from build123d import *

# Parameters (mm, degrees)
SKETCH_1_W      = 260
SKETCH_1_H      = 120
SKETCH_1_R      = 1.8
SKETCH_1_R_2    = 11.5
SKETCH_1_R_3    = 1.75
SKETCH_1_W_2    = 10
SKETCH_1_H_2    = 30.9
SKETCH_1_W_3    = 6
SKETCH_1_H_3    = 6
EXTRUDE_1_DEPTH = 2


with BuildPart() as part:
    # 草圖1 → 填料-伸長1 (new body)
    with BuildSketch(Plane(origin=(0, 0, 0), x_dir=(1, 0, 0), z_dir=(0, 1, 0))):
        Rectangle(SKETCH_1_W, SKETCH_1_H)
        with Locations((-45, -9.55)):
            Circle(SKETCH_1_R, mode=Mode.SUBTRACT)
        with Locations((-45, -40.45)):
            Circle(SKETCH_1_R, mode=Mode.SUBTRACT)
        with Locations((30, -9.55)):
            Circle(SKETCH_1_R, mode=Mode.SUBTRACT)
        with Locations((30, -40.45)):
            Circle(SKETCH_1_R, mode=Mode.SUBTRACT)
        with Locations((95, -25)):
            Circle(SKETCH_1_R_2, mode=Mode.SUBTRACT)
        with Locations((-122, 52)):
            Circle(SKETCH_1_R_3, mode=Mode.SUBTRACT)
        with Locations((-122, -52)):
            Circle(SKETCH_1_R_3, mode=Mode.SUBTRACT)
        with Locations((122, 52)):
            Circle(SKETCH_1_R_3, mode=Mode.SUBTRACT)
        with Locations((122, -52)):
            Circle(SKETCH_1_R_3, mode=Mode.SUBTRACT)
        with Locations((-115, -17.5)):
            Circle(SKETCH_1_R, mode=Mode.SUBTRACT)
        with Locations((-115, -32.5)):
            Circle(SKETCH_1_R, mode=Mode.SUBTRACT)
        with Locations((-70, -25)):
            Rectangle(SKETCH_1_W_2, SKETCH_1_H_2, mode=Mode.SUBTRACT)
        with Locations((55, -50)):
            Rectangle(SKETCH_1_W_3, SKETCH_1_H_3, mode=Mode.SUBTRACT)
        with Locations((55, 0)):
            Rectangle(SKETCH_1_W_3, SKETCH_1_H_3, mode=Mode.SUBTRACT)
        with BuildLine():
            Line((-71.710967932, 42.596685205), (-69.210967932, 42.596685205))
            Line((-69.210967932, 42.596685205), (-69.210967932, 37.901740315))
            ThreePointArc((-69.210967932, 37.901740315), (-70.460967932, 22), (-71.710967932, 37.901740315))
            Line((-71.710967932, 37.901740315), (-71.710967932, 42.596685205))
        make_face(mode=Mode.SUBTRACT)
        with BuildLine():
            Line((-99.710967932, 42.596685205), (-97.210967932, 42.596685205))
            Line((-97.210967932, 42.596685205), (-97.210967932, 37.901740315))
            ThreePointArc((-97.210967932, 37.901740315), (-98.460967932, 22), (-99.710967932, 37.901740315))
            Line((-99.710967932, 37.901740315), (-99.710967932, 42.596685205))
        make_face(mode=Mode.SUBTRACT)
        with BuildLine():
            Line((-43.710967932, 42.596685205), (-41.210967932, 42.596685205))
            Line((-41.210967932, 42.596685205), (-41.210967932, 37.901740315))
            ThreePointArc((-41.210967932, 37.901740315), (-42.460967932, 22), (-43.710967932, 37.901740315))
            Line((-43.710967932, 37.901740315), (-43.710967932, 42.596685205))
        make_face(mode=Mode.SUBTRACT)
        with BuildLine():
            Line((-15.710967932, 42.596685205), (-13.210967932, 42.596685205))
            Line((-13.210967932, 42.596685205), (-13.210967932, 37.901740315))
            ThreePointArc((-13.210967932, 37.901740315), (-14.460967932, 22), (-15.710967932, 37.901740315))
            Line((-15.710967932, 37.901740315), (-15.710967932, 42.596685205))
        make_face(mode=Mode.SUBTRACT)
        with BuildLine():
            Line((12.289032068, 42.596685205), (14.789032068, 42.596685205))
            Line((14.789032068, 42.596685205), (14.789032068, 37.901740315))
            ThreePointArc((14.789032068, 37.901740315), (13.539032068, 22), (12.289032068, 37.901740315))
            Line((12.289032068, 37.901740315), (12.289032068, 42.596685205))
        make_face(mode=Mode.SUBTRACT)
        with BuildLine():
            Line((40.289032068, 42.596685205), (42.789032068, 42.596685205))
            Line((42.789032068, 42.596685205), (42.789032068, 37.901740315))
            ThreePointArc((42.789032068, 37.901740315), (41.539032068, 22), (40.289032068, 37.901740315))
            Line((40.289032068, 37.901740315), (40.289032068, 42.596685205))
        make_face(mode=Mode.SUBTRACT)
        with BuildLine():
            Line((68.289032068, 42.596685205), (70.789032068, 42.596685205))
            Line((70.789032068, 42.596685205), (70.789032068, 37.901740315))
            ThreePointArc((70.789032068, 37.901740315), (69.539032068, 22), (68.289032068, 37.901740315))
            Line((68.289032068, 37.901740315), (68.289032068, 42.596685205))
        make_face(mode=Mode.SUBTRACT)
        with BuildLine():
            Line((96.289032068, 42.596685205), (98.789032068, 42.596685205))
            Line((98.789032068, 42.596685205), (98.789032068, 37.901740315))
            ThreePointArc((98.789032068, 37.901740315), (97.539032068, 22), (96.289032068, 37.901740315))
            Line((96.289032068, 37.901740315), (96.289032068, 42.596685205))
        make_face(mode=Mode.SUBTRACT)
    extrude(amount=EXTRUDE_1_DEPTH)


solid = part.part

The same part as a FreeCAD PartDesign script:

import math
import FreeCAD as App
import Part
import Sketcher
from FreeCAD import Vector

doc = App.newDocument("Part")
body = doc.addObject("PartDesign::Body", "Body")

# Sketch on XZ plane
sketch1 = body.newObject("Sketcher::SketchObject", "Sketch")
sketch1.AttachmentSupport = (doc.getObject("XZ_Plane"), [""])
sketch1.MapMode = "FlatFace"
sketch1.addGeometry([
    Part.LineSegment(Vector(-130, -60, 0), Vector(-130, 60, 0)),  # 0
    Part.LineSegment(Vector(-130, 60, 0), Vector(130, 60, 0)),  # 1
    Part.LineSegment(Vector(130, 60, 0), Vector(130, -60, 0)),  # 2
    Part.LineSegment(Vector(130, -60, 0), Vector(-130, -60, 0)),  # 3
    Part.Circle(Vector(-122, 52, 0), Vector(0, 0, 1), 1.75),  # 4
    Part.Circle(Vector(-115, 32.5, 0), Vector(0, 0, 1), 1.8),  # 5
    Part.Circle(Vector(-45, 40.45, 0), Vector(0, 0, 1), 1.8),  # 6
    Part.Circle(Vector(-115, 17.5, 0), Vector(0, 0, 1), 1.8),  # 7
    Part.LineSegment(Vector(-65, 40.45, 0), Vector(-75, 40.45, 0)),  # 8
    Part.LineSegment(Vector(-75, 40.45, 0), Vector(-75, 9.55, 0)),  # 9
    Part.LineSegment(Vector(-75, 9.55, 0), Vector(-65, 9.55, 0)),  # 10
    Part.LineSegment(Vector(-65, 9.55, 0), Vector(-65, 40.45, 0)),  # 11
    Part.Circle(Vector(-45, 9.55, 0), Vector(0, 0, 1), 1.8),  # 12
    Part.Circle(Vector(30, 40.45, 0), Vector(0, 0, 1), 1.8),  # 13
    Part.LineSegment(Vector(58, 53, 0), Vector(52, 53, 0)),  # 14
    Part.LineSegment(Vector(52, 53, 0), Vector(52, 47, 0)),  # 15
    Part.LineSegment(Vector(52, 47, 0), Vector(58, 47, 0)),  # 16
    Part.LineSegment(Vector(58, 47, 0), Vector(58, 53, 0)),  # 17
    Part.Circle(Vector(122, 52, 0), Vector(0, 0, 1), 1.75),  # 18
    Part.Circle(Vector(30, 9.55, 0), Vector(0, 0, 1), 1.8),  # 19
    Part.Circle(Vector(95, 25, 0), Vector(0, 0, 1), 11.5),  # 20
    Part.LineSegment(Vector(-99.710968, -37.90174, 0), Vector(-99.710968, -42.596685, 0)),  # 21
    Part.LineSegment(Vector(-99.710968, -42.596685, 0), Vector(-97.210968, -42.596685, 0)),  # 22
    Part.LineSegment(Vector(-97.210968, -42.596685, 0), Vector(-97.210968, -37.90174, 0)),  # 23
    Part.ArcOfCircle(Part.Circle(Vector(-98.460968, -30, 0), Vector(0, 0, 1), 8), math.radians(-81.010701), math.radians(261.010701)),  # 24
    Part.LineSegment(Vector(-71.710968, -37.90174, 0), Vector(-71.710968, -42.596685, 0)),  # 25
    Part.LineSegment(Vector(-71.710968, -42.596685, 0), Vector(-69.210968, -42.596685, 0)),  # 26
    Part.LineSegment(Vector(-69.210968, -42.596685, 0), Vector(-69.210968, -37.90174, 0)),  # 27
    Part.ArcOfCircle(Part.Circle(Vector(-70.460968, -30, 0), Vector(0, 0, 1), 8), math.radians(-81.010701), math.radians(261.010701)),  # 28
    Part.Circle(Vector(-122, -52, 0), Vector(0, 0, 1), 1.75),  # 29
    Part.LineSegment(Vector(-43.710968, -37.90174, 0), Vector(-43.710968, -42.596685, 0)),  # 30
    Part.LineSegment(Vector(-43.710968, -42.596685, 0), Vector(-41.210968, -42.596685, 0)),  # 31
    Part.LineSegment(Vector(-41.210968, -42.596685, 0), Vector(-41.210968, -37.90174, 0)),  # 32
    Part.ArcOfCircle(Part.Circle(Vector(-42.460968, -30, 0), Vector(0, 0, 1), 8), math.radians(-81.010701), math.radians(261.010701)),  # 33
    Part.LineSegment(Vector(-15.710968, -37.90174, 0), Vector(-15.710968, -42.596685, 0)),  # 34
    Part.LineSegment(Vector(-15.710968, -42.596685, 0), Vector(-13.210968, -42.596685, 0)),  # 35
    Part.LineSegment(Vector(-13.210968, -42.596685, 0), Vector(-13.210968, -37.90174, 0)),  # 36
    Part.ArcOfCircle(Part.Circle(Vector(-14.460968, -30, 0), Vector(0, 0, 1), 8), math.radians(-81.010701), math.radians(261.010701)),  # 37
    Part.LineSegment(Vector(58, 3, 0), Vector(52, 3, 0)),  # 38
    Part.LineSegment(Vector(52, 3, 0), Vector(52, -3, 0)),  # 39
    Part.LineSegment(Vector(52, -3, 0), Vector(58, -3, 0)),  # 40
    Part.LineSegment(Vector(58, -3, 0), Vector(58, 3, 0)),  # 41
    Part.LineSegment(Vector(12.289032, -37.90174, 0), Vector(12.289032, -42.596685, 0)),  # 42
    Part.LineSegment(Vector(12.289032, -42.596685, 0), Vector(14.789032, -42.596685, 0)),  # 43
    Part.LineSegment(Vector(14.789032, -42.596685, 0), Vector(14.789032, -37.90174, 0)),  # 44
    Part.ArcOfCircle(Part.Circle(Vector(13.539032, -30, 0), Vector(0, 0, 1), 8), math.radians(-81.010701), math.radians(261.010701)),  # 45
    Part.LineSegment(Vector(40.289032, -37.90174, 0), Vector(40.289032, -42.596685, 0)),  # 46
    Part.LineSegment(Vector(40.289032, -42.596685, 0), Vector(42.789032, -42.596685, 0)),  # 47
    Part.LineSegment(Vector(42.789032, -42.596685, 0), Vector(42.789032, -37.90174, 0)),  # 48
    Part.ArcOfCircle(Part.Circle(Vector(41.539032, -30, 0), Vector(0, 0, 1), 8), math.radians(-81.010701), math.radians(261.010701)),  # 49
    Part.LineSegment(Vector(68.289032, -37.90174, 0), Vector(68.289032, -42.596685, 0)),  # 50
    Part.LineSegment(Vector(68.289032, -42.596685, 0), Vector(70.789032, -42.596685, 0)),  # 51
    Part.LineSegment(Vector(70.789032, -42.596685, 0), Vector(70.789032, -37.90174, 0)),  # 52
    Part.ArcOfCircle(Part.Circle(Vector(69.539032, -30, 0), Vector(0, 0, 1), 8), math.radians(-81.010701), math.radians(261.010701)),  # 53
    Part.LineSegment(Vector(96.289032, -37.90174, 0), Vector(96.289032, -42.596685, 0)),  # 54
    Part.LineSegment(Vector(96.289032, -42.596685, 0), Vector(98.789032, -42.596685, 0)),  # 55
    Part.LineSegment(Vector(98.789032, -42.596685, 0), Vector(98.789032, -37.90174, 0)),  # 56
    Part.ArcOfCircle(Part.Circle(Vector(97.539032, -30, 0), Vector(0, 0, 1), 8), math.radians(-81.010701), math.radians(261.010701)),  # 57
    Part.Circle(Vector(122, -52, 0), Vector(0, 0, 1), 1.75),  # 58
], False)
sketch1.addConstraint([
    Sketcher.Constraint("Coincident", 0, 2, 1, 1),
    Sketcher.Constraint("Coincident", 1, 2, 2, 1),
    Sketcher.Constraint("Coincident", 2, 2, 3, 1),
    Sketcher.Constraint("Coincident", 3, 2, 0, 1),
    Sketcher.Constraint("Coincident", 8, 2, 9, 1),
    Sketcher.Constraint("Coincident", 9, 2, 10, 1),
    Sketcher.Constraint("Coincident", 10, 2, 11, 1),
    Sketcher.Constraint("Coincident", 11, 2, 8, 1),
    Sketcher.Constraint("Coincident", 14, 2, 15, 1),
    Sketcher.Constraint("Coincident", 15, 2, 16, 1),
    Sketcher.Constraint("Coincident", 16, 2, 17, 1),
    Sketcher.Constraint("Coincident", 17, 2, 14, 1),
    Sketcher.Constraint("Coincident", 21, 2, 22, 1),
    Sketcher.Constraint("Coincident", 22, 2, 23, 1),
    Sketcher.Constraint("Coincident", 23, 2, 24, 1),
    Sketcher.Constraint("Coincident", 24, 2, 21, 1),
    Sketcher.Constraint("Coincident", 25, 2, 26, 1),
    Sketcher.Constraint("Coincident", 26, 2, 27, 1),
    Sketcher.Constraint("Coincident", 27, 2, 28, 1),
    Sketcher.Constraint("Coincident", 28, 2, 25, 1),
    Sketcher.Constraint("Coincident", 30, 2, 31, 1),
    Sketcher.Constraint("Coincident", 31, 2, 32, 1),
    Sketcher.Constraint("Coincident", 32, 2, 33, 1),
    Sketcher.Constraint("Coincident", 33, 2, 30, 1),
    Sketcher.Constraint("Coincident", 34, 2, 35, 1),
    Sketcher.Constraint("Coincident", 35, 2, 36, 1),
    Sketcher.Constraint("Coincident", 36, 2, 37, 1),
    Sketcher.Constraint("Coincident", 37, 2, 34, 1),
    Sketcher.Constraint("Coincident", 38, 2, 39, 1),
    Sketcher.Constraint("Coincident", 39, 2, 40, 1),
    Sketcher.Constraint("Coincident", 40, 2, 41, 1),
    Sketcher.Constraint("Coincident", 41, 2, 38, 1),
    Sketcher.Constraint("Coincident", 42, 2, 43, 1),
    Sketcher.Constraint("Coincident", 43, 2, 44, 1),
    Sketcher.Constraint("Coincident", 44, 2, 45, 1),
    Sketcher.Constraint("Coincident", 45, 2, 42, 1),
    Sketcher.Constraint("Coincident", 46, 2, 47, 1),
    Sketcher.Constraint("Coincident", 47, 2, 48, 1),
    Sketcher.Constraint("Coincident", 48, 2, 49, 1),
    Sketcher.Constraint("Coincident", 49, 2, 46, 1),
    Sketcher.Constraint("Coincident", 50, 2, 51, 1),
    Sketcher.Constraint("Coincident", 51, 2, 52, 1),
    Sketcher.Constraint("Coincident", 52, 2, 53, 1),
    Sketcher.Constraint("Coincident", 53, 2, 50, 1),
    Sketcher.Constraint("Coincident", 54, 2, 55, 1),
    Sketcher.Constraint("Coincident", 55, 2, 56, 1),
    Sketcher.Constraint("Coincident", 56, 2, 57, 1),
    Sketcher.Constraint("Coincident", 57, 2, 54, 1),
    Sketcher.Constraint("Vertical", 0),
    Sketcher.Constraint("Horizontal", 1),
    Sketcher.Constraint("Vertical", 2),
    Sketcher.Constraint("Horizontal", 3),
    Sketcher.Constraint("Horizontal", 8),
    Sketcher.Constraint("Vertical", 9),
    Sketcher.Constraint("Horizontal", 10),
    Sketcher.Constraint("Vertical", 11),
    Sketcher.Constraint("Horizontal", 14),
    Sketcher.Constraint("Vertical", 15),
    Sketcher.Constraint("Horizontal", 16),
    Sketcher.Constraint("Vertical", 17),
    Sketcher.Constraint("Vertical", 21),
    Sketcher.Constraint("Horizontal", 22),
    Sketcher.Constraint("Vertical", 23),
    Sketcher.Constraint("Vertical", 25),
    Sketcher.Constraint("Horizontal", 26),
    Sketcher.Constraint("Vertical", 27),
    Sketcher.Constraint("Vertical", 30),
    Sketcher.Constraint("Horizontal", 31),
    Sketcher.Constraint("Vertical", 32),
    Sketcher.Constraint("Vertical", 34),
    Sketcher.Constraint("Horizontal", 35),
    Sketcher.Constraint("Vertical", 36),
    Sketcher.Constraint("Horizontal", 38),
    Sketcher.Constraint("Vertical", 39),
    Sketcher.Constraint("Horizontal", 40),
    Sketcher.Constraint("Vertical", 41),
    Sketcher.Constraint("Vertical", 42),
    Sketcher.Constraint("Horizontal", 43),
    Sketcher.Constraint("Vertical", 44),
    Sketcher.Constraint("Vertical", 46),
    Sketcher.Constraint("Horizontal", 47),
    Sketcher.Constraint("Vertical", 48),
    Sketcher.Constraint("Vertical", 50),
    Sketcher.Constraint("Horizontal", 51),
    Sketcher.Constraint("Vertical", 52),
    Sketcher.Constraint("Vertical", 54),
    Sketcher.Constraint("Horizontal", 55),
    Sketcher.Constraint("Vertical", 56),
    Sketcher.Constraint("Equal", 5, 6),
    Sketcher.Constraint("Equal", 6, 7),
    Sketcher.Constraint("Equal", 7, 12),
    Sketcher.Constraint("Equal", 12, 13),
    Sketcher.Constraint("Equal", 4, 18),
    Sketcher.Constraint("Equal", 13, 19),
    Sketcher.Constraint("Equal", 24, 28),
    Sketcher.Constraint("Equal", 18, 29),
    Sketcher.Constraint("Equal", 28, 33),
    Sketcher.Constraint("Equal", 33, 37),
    Sketcher.Constraint("Equal", 37, 45),
    Sketcher.Constraint("Equal", 45, 49),
    Sketcher.Constraint("Equal", 49, 53),
    Sketcher.Constraint("Equal", 53, 57),
    Sketcher.Constraint("Equal", 29, 58),
    Sketcher.Constraint("Symmetric", 18, 3, 29, 3, -1, 1),
    Sketcher.Constraint("Symmetric", 4, 3, 58, 3, -1, 1),
    Sketcher.Constraint("Symmetric", 0, 2, 2, 2, -1, 1),
    Sketcher.Constraint("Symmetric", 4, 3, 18, 3, -2),
    Sketcher.Constraint("Horizontal", 6, 3, 13, 3),
    Sketcher.Constraint("Horizontal", 12, 3, 19, 3),
    Sketcher.Constraint("Horizontal", 24, 3, 28, 3),
    Sketcher.Constraint("Horizontal", 28, 3, 33, 3),
    Sketcher.Constraint("Horizontal", 33, 3, 37, 3),
    Sketcher.Constraint("Horizontal", 37, 3, 45, 3),
    Sketcher.Constraint("Horizontal", 45, 3, 49, 3),
    Sketcher.Constraint("Horizontal", 49, 3, 53, 3),
    Sketcher.Constraint("Horizontal", 53, 3, 57, 3),
    Sketcher.Constraint("Horizontal", 13, 3, 8, 2),
    Sketcher.Constraint("Horizontal", 19, 3, 9, 2),
    Sketcher.Constraint("Horizontal", 23, 2, 24, 2),
    Sketcher.Constraint("Horizontal", 22, 2, 25, 2),
    Sketcher.Constraint("Horizontal", 24, 2, 27, 2),
    Sketcher.Constraint("Horizontal", 27, 2, 28, 2),
    Sketcher.Constraint("Horizontal", 26, 2, 30, 2),
    Sketcher.Constraint("Horizontal", 28, 2, 32, 2),
    Sketcher.Constraint("Horizontal", 32, 2, 33, 2),
    Sketcher.Constraint("Horizontal", 31, 2, 34, 2),
    Sketcher.Constraint("Horizontal", 33, 2, 36, 2),
    Sketcher.Constraint("Horizontal", 36, 2, 37, 2),
    Sketcher.Constraint("Horizontal", 35, 2, 42, 2),
    Sketcher.Constraint("Horizontal", 37, 2, 44, 2),
    Sketcher.Constraint("Horizontal", 44, 2, 45, 2),
    Sketcher.Constraint("Horizontal", 43, 2, 46, 2),
    Sketcher.Constraint("Horizontal", 45, 2, 48, 2),
    Sketcher.Constraint("Horizontal", 48, 2, 49, 2),
    Sketcher.Constraint("Horizontal", 47, 2, 50, 2),
    Sketcher.Constraint("Horizontal", 49, 2, 52, 2),
    Sketcher.Constraint("Horizontal", 52, 2, 53, 2),
    Sketcher.Constraint("Horizontal", 51, 2, 54, 2),
    Sketcher.Constraint("Horizontal", 53, 2, 56, 2),
    Sketcher.Constraint("Horizontal", 56, 2, 57, 2),
    Sketcher.Constraint("Vertical", 5, 3, 7, 3),
    Sketcher.Constraint("Vertical", 6, 3, 12, 3),
    Sketcher.Constraint("Vertical", 13, 3, 19, 3),
    Sketcher.Constraint("Vertical", 15, 2, 38, 2),
    Sketcher.Constraint("Vertical", 17, 2, 40, 2),
    Sketcher.Constraint("Equal", 40, 15),
    Sketcher.Constraint("Equal", 17, 39),
    Sketcher.Constraint("Diameter", 20, 23.0),
    Sketcher.Constraint("Radius", 24, 8.0),
    Sketcher.Constraint("Diameter", 4, 3.5),
    Sketcher.Constraint("Diameter", 5, 3.6),
    Sketcher.Constraint("DistanceX", 1, 1, 1, 2, 260.0),
    Sketcher.Constraint("DistanceX", 8, 2, 8, 1, 10.0),
    Sketcher.Constraint("DistanceX", 14, 2, 14, 1, 6.0),
    Sketcher.Constraint("DistanceY", 0, 1, 0, 2, 120.0),
    Sketcher.Constraint("DistanceX", 22, 1, 22, 2, 2.5),
    Sketcher.Constraint("DistanceY", 9, 2, 9, 1, 30.9),
    Sketcher.Constraint("DistanceX", 4, 3, -1, 1, 122.0),
    Sketcher.Constraint("DistanceY", -1, 1, 4, 3, 52.0),
    Sketcher.Constraint("DistanceX", 5, 3, -1, 1, 115.0),
    Sketcher.Constraint("DistanceX", 6, 3, -1, 1, 45.0),
    Sketcher.Constraint("DistanceX", -1, 1, 13, 3, 30.0),
    Sketcher.Constraint("DistanceX", -1, 1, 20, 3, 95.0),
    Sketcher.Constraint("DistanceY", -1, 1, 20, 3, 25.0),
    Sketcher.Constraint("DistanceY", 24, 3, -1, 1, 30.0),
    Sketcher.Constraint("DistanceX", 8, 2, -1, 1, 75.0),
    Sketcher.Constraint("DistanceX", -1, 1, 14, 2, 52.0),
    Sketcher.Constraint("DistanceY", -1, 1, 14, 2, 53.0),
    Sketcher.Constraint("DistanceY", -1, 1, 38, 2, 3.0),
    Sketcher.Constraint("DistanceY", -1, 1, 5, 3, 32.5),
    Sketcher.Constraint("DistanceY", -1, 1, 7, 3, 17.5),
    Sketcher.Constraint("DistanceY", -1, 1, 6, 3, 40.45),
    Sketcher.Constraint("DistanceY", 21, 2, 21, 1, 4.694945),
    Sketcher.Constraint("DistanceX", 24, 3, -1, 1, 98.460968),
    Sketcher.Constraint("DistanceX", 28, 3, -1, 1, 70.460968),
    Sketcher.Constraint("DistanceX", 33, 3, -1, 1, 42.460968),
    Sketcher.Constraint("DistanceX", 37, 3, -1, 1, 14.460968),
    Sketcher.Constraint("DistanceX", -1, 1, 45, 3, 13.539032),
    Sketcher.Constraint("DistanceX", -1, 1, 49, 3, 41.539032),
    Sketcher.Constraint("DistanceX", -1, 1, 53, 3, 69.539032),
    Sketcher.Constraint("DistanceX", -1, 1, 57, 3, 97.539032),
])
pad1 = body.newObject("PartDesign::Pad", "Pad")
pad1.Profile = sketch1
pad1.Length = 2
pad1.Reversed = True

doc.recompute()
